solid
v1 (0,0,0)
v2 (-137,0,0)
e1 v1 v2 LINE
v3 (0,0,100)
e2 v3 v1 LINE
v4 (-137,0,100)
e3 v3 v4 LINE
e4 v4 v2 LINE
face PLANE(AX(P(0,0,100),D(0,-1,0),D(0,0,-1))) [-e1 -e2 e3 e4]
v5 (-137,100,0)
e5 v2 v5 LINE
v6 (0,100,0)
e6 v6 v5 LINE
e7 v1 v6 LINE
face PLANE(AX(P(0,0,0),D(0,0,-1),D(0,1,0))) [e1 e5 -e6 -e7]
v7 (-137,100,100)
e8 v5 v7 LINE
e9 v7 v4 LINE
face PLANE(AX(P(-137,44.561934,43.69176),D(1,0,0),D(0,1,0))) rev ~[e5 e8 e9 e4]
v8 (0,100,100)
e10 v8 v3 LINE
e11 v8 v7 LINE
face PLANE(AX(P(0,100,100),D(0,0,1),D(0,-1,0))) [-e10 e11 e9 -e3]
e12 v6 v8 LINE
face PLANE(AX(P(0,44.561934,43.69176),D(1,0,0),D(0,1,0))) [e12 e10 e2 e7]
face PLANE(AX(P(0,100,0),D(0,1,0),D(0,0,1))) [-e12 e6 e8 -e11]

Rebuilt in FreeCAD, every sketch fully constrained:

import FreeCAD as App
import Part
import Sketcher

V = App.Vector


def add_polygon(sketch, points):
    """Adds a closed chain of lines whose ends are joined by coincident constraints."""
    first, n = sketch.GeometryCount, len(points)
    for a, b in zip(points, points[1:] + points[:1]):
        sketch.addGeometry(Part.LineSegment(App.Vector(*a, 0), App.Vector(*b, 0)), False)
    for i in range(n):
        sketch.addConstraint(Sketcher.Constraint("Coincident", first + i, 2, first + (i + 1) % n, 1))

doc = App.newDocument("Part")
body = doc.addObject("PartDesign::Body", "Body")

# Sketch on YZ plane
sketch1 = body.newObject("Sketcher::SketchObject", "Sketch")
sketch1.AttachmentSupport = (doc.getObject("YZ_Plane"), [""])
sketch1.MapMode = "FlatFace"
add_polygon(sketch1, [(0, 100), (0, 0), (100, 0), (100, 100)])  # lines 0-3
sketch1.addConstraint(Sketcher.Constraint("Vertical", 0))
sketch1.addConstraint(Sketcher.Constraint("Horizontal", 1))
sketch1.addConstraint(Sketcher.Constraint("Vertical", 2))
sketch1.addConstraint(Sketcher.Constraint("Horizontal", 3))
sketch1.addConstraint(Sketcher.Constraint("Coincident", 0, 2, -1, 1))
sketch1.addConstraint(Sketcher.Constraint("Equal", 3, 0))
sketch1.addConstraint(Sketcher.Constraint("DistanceX", 1, 1, 1, 2, 100.0))
pad1 = body.newObject("PartDesign::Pad", "Pad")
pad1.Profile = sketch1
pad1.Length = 137
pad1.Reversed = True

doc.recompute()
